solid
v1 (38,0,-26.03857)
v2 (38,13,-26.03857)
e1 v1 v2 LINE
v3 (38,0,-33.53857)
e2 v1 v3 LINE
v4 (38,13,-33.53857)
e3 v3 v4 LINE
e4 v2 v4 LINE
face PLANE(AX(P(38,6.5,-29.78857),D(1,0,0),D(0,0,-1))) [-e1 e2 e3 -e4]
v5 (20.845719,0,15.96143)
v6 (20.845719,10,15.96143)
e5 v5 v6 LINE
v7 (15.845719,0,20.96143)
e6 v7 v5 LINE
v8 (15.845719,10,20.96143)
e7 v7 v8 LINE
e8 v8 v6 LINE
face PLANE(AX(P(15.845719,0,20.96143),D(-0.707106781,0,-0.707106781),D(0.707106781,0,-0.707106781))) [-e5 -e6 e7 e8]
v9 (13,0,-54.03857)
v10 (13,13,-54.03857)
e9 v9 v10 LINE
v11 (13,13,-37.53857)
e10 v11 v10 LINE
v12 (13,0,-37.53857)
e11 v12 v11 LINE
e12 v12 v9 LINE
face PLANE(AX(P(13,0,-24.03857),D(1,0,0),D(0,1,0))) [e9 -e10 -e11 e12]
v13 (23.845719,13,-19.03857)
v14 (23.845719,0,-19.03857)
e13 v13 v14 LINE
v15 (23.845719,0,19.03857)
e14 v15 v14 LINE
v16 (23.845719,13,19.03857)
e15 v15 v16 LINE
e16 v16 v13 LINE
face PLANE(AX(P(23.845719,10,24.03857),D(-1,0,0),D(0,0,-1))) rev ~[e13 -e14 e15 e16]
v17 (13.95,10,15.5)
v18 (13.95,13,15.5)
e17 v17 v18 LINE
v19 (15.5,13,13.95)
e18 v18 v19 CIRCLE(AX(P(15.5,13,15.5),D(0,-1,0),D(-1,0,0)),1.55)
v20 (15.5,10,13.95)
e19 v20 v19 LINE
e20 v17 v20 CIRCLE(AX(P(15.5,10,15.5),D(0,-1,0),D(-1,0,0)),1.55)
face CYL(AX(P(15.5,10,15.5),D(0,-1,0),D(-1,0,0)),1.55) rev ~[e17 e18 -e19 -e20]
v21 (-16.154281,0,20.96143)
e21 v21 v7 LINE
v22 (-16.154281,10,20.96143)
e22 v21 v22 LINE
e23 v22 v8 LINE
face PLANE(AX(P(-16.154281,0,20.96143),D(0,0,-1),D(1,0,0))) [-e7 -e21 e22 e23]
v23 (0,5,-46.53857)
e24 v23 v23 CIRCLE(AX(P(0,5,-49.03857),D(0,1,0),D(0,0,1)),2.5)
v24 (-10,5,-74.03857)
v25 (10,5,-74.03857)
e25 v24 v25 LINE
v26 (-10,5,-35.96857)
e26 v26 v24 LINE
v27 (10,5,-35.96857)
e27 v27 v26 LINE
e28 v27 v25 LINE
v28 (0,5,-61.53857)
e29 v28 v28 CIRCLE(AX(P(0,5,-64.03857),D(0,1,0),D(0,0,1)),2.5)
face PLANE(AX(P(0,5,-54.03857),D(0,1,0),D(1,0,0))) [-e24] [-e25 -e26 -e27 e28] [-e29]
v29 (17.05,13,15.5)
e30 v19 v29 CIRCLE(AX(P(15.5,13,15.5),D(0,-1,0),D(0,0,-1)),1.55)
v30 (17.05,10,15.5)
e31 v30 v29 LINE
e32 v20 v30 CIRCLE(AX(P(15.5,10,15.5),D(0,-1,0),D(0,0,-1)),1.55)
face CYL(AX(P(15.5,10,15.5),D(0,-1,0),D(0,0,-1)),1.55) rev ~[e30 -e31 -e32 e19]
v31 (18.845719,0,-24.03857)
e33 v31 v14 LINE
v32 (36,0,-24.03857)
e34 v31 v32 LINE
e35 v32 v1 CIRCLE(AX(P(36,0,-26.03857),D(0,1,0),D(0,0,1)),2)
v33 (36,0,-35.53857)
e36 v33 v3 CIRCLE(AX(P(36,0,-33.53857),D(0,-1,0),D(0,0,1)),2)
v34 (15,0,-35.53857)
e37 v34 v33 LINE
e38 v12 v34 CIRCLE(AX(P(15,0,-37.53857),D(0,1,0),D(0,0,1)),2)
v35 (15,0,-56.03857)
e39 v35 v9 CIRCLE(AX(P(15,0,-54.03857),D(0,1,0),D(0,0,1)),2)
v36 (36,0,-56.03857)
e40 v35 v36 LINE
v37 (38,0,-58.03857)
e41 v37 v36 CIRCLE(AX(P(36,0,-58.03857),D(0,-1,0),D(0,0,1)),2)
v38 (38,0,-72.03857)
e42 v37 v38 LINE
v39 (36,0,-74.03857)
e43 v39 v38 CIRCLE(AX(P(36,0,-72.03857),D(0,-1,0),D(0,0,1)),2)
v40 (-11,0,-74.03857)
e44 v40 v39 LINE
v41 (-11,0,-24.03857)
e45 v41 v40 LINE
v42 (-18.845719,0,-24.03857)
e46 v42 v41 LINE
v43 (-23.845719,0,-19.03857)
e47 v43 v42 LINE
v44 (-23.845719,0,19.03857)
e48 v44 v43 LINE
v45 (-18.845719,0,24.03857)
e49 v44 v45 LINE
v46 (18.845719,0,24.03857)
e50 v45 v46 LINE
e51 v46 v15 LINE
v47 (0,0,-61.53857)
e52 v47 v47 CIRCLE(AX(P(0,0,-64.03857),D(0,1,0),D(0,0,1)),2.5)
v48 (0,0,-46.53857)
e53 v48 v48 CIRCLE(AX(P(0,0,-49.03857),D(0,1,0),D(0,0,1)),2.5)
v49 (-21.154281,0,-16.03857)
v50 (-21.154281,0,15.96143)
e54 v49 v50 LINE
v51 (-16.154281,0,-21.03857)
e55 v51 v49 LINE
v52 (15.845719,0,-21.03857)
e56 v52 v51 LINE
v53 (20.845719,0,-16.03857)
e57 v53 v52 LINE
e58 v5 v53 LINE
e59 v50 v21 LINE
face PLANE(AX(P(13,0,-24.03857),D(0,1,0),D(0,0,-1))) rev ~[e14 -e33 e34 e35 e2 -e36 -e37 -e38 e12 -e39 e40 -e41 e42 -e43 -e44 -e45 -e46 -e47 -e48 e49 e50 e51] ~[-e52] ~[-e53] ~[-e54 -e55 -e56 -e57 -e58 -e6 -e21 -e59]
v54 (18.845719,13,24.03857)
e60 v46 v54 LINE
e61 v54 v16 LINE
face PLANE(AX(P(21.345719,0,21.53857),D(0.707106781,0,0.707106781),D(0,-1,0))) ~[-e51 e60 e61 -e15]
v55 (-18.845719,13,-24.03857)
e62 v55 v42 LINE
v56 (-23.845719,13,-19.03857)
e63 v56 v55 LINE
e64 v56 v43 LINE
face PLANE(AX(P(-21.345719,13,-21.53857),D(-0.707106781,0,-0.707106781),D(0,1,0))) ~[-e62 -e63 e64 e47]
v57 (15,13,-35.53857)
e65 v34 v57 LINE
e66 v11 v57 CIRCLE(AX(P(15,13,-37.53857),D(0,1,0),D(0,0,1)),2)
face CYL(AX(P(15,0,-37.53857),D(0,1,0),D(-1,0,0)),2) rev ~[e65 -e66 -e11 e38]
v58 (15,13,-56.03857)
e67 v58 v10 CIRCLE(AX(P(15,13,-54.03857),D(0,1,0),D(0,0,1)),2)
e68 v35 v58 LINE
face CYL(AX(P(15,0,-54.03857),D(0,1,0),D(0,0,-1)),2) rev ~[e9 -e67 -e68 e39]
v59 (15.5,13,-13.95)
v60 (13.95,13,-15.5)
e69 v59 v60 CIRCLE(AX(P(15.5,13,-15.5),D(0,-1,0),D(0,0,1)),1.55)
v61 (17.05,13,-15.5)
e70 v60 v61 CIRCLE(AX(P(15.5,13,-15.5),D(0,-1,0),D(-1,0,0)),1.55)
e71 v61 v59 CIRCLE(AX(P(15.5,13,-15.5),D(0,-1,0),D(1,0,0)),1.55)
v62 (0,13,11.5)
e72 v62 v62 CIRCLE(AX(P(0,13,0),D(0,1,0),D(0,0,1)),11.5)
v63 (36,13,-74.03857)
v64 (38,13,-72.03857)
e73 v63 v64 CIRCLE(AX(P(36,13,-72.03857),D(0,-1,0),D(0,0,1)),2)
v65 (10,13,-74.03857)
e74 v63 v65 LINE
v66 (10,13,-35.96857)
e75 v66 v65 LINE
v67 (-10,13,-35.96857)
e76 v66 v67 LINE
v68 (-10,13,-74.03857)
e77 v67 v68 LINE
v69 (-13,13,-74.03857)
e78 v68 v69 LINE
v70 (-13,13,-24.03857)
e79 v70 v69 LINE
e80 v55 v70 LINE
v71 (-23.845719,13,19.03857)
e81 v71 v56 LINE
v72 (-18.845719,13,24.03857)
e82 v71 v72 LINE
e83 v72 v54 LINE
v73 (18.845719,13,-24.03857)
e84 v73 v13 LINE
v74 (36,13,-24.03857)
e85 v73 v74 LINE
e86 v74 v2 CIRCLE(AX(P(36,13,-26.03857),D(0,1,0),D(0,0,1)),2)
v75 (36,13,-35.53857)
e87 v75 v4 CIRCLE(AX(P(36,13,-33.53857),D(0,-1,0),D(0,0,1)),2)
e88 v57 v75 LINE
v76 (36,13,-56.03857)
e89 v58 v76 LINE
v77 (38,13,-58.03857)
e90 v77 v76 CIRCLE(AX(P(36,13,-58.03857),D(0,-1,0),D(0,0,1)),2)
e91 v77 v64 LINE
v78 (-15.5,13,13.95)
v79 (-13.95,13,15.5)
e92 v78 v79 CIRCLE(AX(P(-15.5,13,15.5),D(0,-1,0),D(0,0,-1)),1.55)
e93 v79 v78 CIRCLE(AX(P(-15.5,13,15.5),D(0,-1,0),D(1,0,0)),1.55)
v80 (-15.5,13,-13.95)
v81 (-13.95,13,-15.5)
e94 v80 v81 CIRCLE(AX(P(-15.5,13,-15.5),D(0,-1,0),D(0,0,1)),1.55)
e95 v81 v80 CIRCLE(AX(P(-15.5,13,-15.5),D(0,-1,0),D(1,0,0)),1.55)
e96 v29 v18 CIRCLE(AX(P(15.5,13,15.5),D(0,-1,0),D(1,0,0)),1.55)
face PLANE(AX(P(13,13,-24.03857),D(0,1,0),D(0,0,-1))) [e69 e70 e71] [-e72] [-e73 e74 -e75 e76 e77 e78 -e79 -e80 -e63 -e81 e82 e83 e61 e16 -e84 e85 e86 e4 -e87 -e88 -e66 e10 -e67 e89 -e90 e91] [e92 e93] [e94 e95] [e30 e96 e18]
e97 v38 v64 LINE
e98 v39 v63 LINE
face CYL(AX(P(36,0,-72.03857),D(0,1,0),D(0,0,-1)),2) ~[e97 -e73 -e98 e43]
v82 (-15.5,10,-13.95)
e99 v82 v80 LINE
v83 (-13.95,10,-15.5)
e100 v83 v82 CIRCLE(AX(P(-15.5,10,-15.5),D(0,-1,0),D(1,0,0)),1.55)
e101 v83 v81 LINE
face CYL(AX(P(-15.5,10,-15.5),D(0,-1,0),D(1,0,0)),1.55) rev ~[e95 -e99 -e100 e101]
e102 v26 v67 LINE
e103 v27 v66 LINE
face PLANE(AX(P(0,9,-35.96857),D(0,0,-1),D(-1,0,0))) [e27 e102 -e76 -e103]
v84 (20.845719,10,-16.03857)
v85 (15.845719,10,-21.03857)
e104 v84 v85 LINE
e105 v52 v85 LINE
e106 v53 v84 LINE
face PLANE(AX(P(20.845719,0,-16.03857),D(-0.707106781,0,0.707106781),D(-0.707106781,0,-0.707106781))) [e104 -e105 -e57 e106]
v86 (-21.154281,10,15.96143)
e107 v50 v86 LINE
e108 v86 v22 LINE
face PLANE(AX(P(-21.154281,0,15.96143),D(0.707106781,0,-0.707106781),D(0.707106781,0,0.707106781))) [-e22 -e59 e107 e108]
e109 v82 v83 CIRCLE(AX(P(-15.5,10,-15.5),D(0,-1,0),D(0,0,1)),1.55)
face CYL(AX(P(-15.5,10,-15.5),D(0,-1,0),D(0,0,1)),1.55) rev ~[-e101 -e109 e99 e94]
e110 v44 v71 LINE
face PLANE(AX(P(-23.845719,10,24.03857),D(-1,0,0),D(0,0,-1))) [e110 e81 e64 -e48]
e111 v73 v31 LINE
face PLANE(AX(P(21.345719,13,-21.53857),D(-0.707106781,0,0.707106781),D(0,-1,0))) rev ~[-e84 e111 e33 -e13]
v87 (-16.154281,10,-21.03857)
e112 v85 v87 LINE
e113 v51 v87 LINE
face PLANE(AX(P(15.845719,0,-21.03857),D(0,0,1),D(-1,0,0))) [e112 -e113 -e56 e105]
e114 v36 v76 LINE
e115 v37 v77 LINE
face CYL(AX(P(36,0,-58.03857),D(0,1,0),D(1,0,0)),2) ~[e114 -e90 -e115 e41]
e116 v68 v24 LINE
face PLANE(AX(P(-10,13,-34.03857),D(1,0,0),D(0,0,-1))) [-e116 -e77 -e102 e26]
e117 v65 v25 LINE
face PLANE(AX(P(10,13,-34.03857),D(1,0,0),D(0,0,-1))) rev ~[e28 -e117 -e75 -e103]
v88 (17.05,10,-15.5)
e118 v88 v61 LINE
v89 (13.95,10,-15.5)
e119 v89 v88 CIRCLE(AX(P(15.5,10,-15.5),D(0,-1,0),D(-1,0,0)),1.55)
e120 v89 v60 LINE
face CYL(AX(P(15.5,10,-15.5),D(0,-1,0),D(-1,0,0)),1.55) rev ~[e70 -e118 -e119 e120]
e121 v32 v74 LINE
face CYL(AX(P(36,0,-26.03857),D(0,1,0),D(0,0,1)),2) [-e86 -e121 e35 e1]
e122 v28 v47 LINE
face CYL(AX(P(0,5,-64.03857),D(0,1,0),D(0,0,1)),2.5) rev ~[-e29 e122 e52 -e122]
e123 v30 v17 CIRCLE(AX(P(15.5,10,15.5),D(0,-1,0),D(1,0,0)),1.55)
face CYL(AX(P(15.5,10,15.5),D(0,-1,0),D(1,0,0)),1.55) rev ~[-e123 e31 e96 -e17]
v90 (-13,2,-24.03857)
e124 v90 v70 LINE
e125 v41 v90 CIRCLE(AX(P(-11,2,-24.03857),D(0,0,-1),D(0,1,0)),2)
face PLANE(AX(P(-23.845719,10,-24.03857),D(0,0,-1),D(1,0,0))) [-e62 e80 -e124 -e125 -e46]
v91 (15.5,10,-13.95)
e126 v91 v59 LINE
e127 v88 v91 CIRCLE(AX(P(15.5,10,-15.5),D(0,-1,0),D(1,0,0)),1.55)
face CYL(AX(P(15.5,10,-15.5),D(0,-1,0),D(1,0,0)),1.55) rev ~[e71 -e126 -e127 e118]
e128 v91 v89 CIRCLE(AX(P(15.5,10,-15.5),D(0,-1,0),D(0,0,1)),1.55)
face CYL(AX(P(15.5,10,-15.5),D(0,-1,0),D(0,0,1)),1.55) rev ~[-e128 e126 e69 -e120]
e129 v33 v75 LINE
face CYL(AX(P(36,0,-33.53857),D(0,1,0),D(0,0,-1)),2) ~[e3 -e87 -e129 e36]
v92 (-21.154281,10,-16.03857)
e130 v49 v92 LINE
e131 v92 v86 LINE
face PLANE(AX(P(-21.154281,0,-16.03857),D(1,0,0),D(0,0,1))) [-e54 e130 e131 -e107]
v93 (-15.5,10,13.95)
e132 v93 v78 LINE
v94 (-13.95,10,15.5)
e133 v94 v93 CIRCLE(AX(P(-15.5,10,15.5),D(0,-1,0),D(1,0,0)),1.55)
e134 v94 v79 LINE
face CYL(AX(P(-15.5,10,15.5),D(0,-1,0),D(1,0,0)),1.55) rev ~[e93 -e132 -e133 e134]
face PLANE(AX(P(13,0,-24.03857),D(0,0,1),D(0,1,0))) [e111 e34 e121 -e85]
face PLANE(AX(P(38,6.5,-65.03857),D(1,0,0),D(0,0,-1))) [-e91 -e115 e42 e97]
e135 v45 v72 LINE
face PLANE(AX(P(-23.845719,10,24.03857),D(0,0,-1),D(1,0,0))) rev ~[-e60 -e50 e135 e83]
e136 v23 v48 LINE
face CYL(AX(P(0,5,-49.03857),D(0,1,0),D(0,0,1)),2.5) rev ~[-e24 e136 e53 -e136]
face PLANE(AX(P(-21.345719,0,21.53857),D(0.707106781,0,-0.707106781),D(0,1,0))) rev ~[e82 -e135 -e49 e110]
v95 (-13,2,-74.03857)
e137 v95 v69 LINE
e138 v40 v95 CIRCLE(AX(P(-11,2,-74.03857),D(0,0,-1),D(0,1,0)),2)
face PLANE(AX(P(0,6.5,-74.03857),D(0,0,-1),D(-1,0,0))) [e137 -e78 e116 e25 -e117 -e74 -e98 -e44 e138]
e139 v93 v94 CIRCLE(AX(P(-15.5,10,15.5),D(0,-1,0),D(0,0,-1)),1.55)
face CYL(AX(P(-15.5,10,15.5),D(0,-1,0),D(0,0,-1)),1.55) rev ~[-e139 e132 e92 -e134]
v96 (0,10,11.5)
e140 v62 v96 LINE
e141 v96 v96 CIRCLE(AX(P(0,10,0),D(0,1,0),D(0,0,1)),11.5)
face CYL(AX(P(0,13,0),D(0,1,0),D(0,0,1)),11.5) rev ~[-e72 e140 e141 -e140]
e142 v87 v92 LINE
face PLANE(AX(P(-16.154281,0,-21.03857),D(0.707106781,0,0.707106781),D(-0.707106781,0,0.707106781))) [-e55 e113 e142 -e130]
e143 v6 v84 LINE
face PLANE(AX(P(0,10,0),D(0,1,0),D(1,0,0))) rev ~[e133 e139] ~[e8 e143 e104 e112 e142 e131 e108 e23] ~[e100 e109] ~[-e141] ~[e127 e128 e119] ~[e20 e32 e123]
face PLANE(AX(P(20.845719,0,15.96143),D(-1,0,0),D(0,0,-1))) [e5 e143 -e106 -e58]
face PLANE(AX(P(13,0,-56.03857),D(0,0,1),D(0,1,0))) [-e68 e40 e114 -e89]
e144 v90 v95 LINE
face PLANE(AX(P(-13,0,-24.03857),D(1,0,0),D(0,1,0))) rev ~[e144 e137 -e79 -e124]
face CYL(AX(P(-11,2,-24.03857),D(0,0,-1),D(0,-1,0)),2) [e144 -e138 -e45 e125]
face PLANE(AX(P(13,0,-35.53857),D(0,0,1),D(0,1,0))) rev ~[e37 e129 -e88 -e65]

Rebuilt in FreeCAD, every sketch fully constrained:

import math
import FreeCAD as App
import Part
import Sketcher
from FreeCAD import Vector
Q = App.Units.Quantity


def edges_at(feature, points):
    """Names of the edges that pass closest to the given points."""
    edges = feature.Shape.Edges
    near = lambda p: min(range(len(edges)), key=lambda i: edges[i].distToShape(Part.Vertex(*p))[0])
    return sorted({f"Edge{near(p) + 1}" for p in points})

doc = App.newDocument("Part")
body = doc.addObject("PartDesign::Body", "Body")

sketch1 = body.newObject("Sketcher::SketchObject", "Sketch")
sketch1.AttachmentSupport = (doc.getObject("XZ_Plane"), [""])
sketch1.MapMode = "FlatFace"
sketch1.addGeometry(Part.LineSegment(Vector(-23.845719, -24.03857, 0), Vector(-23.845719, 24.03857, 0)), False)
sketch1.addGeometry(Part.LineSegment(Vector(-23.845719, 24.03857, 0), Vector(23.845719, 24.03857, 0)), False)
sketch1.addGeometry(Part.LineSegment(Vector(23.845719, 24.03857, 0), Vector(23.845719, -24.03857, 0)), False)
sketch1.addGeometry(Part.LineSegment(Vector(23.845719, -24.03857, 0), Vector(-23.845719, -24.03857, 0)), False)
sketch1.addGeometry(Part.LineSegment(Vector(-16.154281, 20.96143, 0), Vector(-21.154281, 15.96143, 0)), False)
sketch1.addGeometry(Part.LineSegment(Vector(-21.154281, 15.96143, 0), Vector(-21.154281, -16.03857, 0)), False)
sketch1.addGeometry(Part.LineSegment(Vector(-21.154281, -16.03857, 0), Vector(-16.154281, -21.03857, 0)), False)
sketch1.addGeometry(Part.LineSegment(Vector(-16.154281, -21.03857, 0), Vector(15.845719, -21.03857, 0)), False)
sketch1.addGeometry(Part.LineSegment(Vector(15.845719, -21.03857, 0), Vector(20.845719, -16.03857, 0)), False)
sketch1.addGeometry(Part.LineSegment(Vector(20.845719, -16.03857, 0), Vector(20.845719, 15.96143, 0)), False)
sketch1.addGeometry(Part.LineSegment(Vector(20.845719, 15.96143, 0), Vector(15.845719, 20.96143, 0)), False)
sketch1.addGeometry(Part.LineSegment(Vector(15.845719, 20.96143, 0), Vector(-16.154281, 20.96143, 0)), False)
sketch1.addConstraint(Sketcher.Constraint("Coincident", 0, 2, 1, 1))
sketch1.addConstraint(Sketcher.Constraint("Coincident", 1, 2, 2, 1))
sketch1.addConstraint(Sketcher.Constraint("Coincident", 2, 2, 3, 1))
sketch1.addConstraint(Sketcher.Constraint("Coincident", 3, 2, 0, 1))
sketch1.addConstraint(Sketcher.Constraint("Coincident", 4, 2, 5, 1))
sketch1.addConstraint(Sketcher.Constraint("Coincident", 5, 2, 6, 1))
sketch1.addConstraint(Sketcher.Constraint("Coincident", 6, 2, 7, 1))
sketch1.addConstraint(Sketcher.Constraint("Coincident", 7, 2, 8, 1))
sketch1.addConstraint(Sketcher.Constraint("Coincident", 8, 2, 9, 1))
sketch1.addConstraint(Sketcher.Constraint("Coincident", 9, 2, 10, 1))
sketch1.addConstraint(Sketcher.Constraint("Coincident", 10, 2, 11, 1))
sketch1.addConstraint(Sketcher.Constraint("Coincident", 11, 2, 4, 1))
sketch1.addConstraint(Sketcher.Constraint("Vertical", 0))
sketch1.addConstraint(Sketcher.Constraint("Horizontal", 1))
sketch1.addConstraint(Sketcher.Constraint("Vertical", 2))
sketch1.addConstraint(Sketcher.Constraint("Horizontal", 3))
sketch1.addConstraint(Sketcher.Constraint("Vertical", 5))
sketch1.addConstraint(Sketcher.Constraint("Horizontal", 7))
sketch1.addConstraint(Sketcher.Constraint("Vertical", 9))
sketch1.addConstraint(Sketcher.Constraint("Horizontal", 11))
sketch1.addConstraint(Sketcher.Constraint("Symmetric", 0, 2, 2, 2, -1, 1))
sketch1.addConstraint(Sketcher.Constraint("Perpendicular", 4, 6))
sketch1.addConstraint(Sketcher.Constraint("Perpendicular", 6, 8))
sketch1.addConstraint(Sketcher.Constraint("Perpendicular", 8, 10))
sketch1.addConstraint(Sketcher.Constraint("Horizontal", 5, 2, 8, 2))
sketch1.addConstraint(Sketcher.Constraint("Horizontal", 4, 2, 9, 2))
sketch1.addConstraint(Sketcher.Constraint("Vertical", 7, 2, 10, 2))
sketch1.addConstraint(Sketcher.Constraint("Vertical", 6, 2, 11, 2))
sketch1.addConstraint(Sketcher.Constraint("Equal", 11, 5))
sketch1.addConstraint(Sketcher.Constraint("DistanceX", 7, 1, 7, 2, Q("32 mm")))
sketch1.addConstraint(Sketcher.Constraint("DistanceY", 3, 2, 4, 2, Q("40 mm")))
sketch1.addConstraint(Sketcher.Constraint("DistanceX", 4, 2, 1, 2, Q("45 mm")))
sketch1.addConstraint(Sketcher.Constraint("DistanceX", 5, 2, 6, 2, Q("5 mm")))
sketch1.addConstraint(Sketcher.Constraint("DistanceX", 1, 1, 1, 2, Q("47.691438 mm")))
sketch1.addConstraint(Sketcher.Constraint("DistanceY", 0, 1, 0, 2, Q("48.07714 mm")))
pad1 = body.newObject("PartDesign::Pad", "Pad")
pad1.Profile = sketch1
pad1.Length = 10
pad1.Reversed = True

sketch2 = body.newObject("Sketcher::SketchObject", "Sketch001")
sketch2.AttachmentSupport = (doc.getObject("XZ_Plane"), [""])
sketch2.MapMode = "FlatFace"
sketch2.AttachmentOffset = App.Placement(Vector(0, 0, -10), App.Rotation())
sketch2.addGeometry(Part.LineSegment(Vector(-23.845719, -24.03857, 0), Vector(-23.845719, 24.03857, 0)), False)
sketch2.addGeometry(Part.LineSegment(Vector(-23.845719, 24.03857, 0), Vector(23.845719, 24.03857, 0)), False)
sketch2.addGeometry(Part.LineSegment(Vector(23.845719, 24.03857, 0), Vector(23.845719, -24.03857, 0)), False)
sketch2.addGeometry(Part.LineSegment(Vector(23.845719, -24.03857, 0), Vector(-23.845719, -24.03857, 0)), False)
sketch2.addConstraint(Sketcher.Constraint("Coincident", 0, 2, 1, 1))
sketch2.addConstraint(Sketcher.Constraint("Coincident", 1, 2, 2, 1))
sketch2.addConstraint(Sketcher.Constraint("Coincident", 2, 2, 3, 1))
sketch2.addConstraint(Sketcher.Constraint("Coincident", 3, 2, 0, 1))
sketch2.addConstraint(Sketcher.Constraint("Vertical", 0))
sketch2.addConstraint(Sketcher.Constraint("Horizontal", 1))
sketch2.addConstraint(Sketcher.Constraint("Vertical", 2))
sketch2.addConstraint(Sketcher.Constraint("Horizontal", 3))
sketch2.addConstraint(Sketcher.Constraint("Symmetric", 0, 2, 2, 2, -1, 1))
sketch2.addConstraint(Sketcher.Constraint("DistanceX", 1, 1, 1, 2, Q("47.691438 mm")))
sketch2.addConstraint(Sketcher.Constraint("DistanceY", 0, 1, 0, 2, Q("48.07714 mm")))
pad2 = body.newObject("PartDesign::Pad", "Pad001")
pad2.Profile = sketch2
pad2.Length = 3
pad2.Reversed = True

sketch3 = body.newObject("Sketcher::SketchObject", "Sketch002")
sketch3.AttachmentSupport = (doc.getObject("XZ_Plane"), [""])
sketch3.MapMode = "FlatFace"
sketch3.AttachmentOffset = App.Placement(Vector(0, 0, -10), App.Rotation())
sketch3.addGeometry(Part.ArcOfCircle(Part.Circle(Vector(-15.5, -15.5, 0), Vector(0, 0, 1), 1.55), math.radians(0), math.radians(90)), False)
sketch3.addGeometry(Part.ArcOfCircle(Part.Circle(Vector(-15.5, -15.5, 0), Vector(0, 0, 1), 1.55), math.radians(90), math.radians(360)), False)
sketch3.addGeometry(Part.ArcOfCircle(Part.Circle(Vector(15.5, -15.5, 0), Vector(0, 0, 1), 1.55), math.radians(0), math.radians(90)), False)
sketch3.addGeometry(Part.ArcOfCircle(Part.Circle(Vector(15.5, -15.5, 0), Vector(0, 0, 1), 1.55), math.radians(90), math.radians(180)), False)
sketch3.addGeometry(Part.ArcOfCircle(Part.Circle(Vector(15.5, -15.5, 0), Vector(0, 0, 1), 1.55), math.radians(180), math.radians(360)), False)
sketch3.addGeometry(Part.ArcOfCircle(Part.Circle(Vector(15.5, 15.5, 0), Vector(0, 0, 1), 1.55), math.radians(0), math.radians(180)), False)
sketch3.addGeometry(Part.ArcOfCircle(Part.Circle(Vector(15.5, 15.5, 0), Vector(0, 0, 1), 1.55), math.radians(180), math.radians(270)), False)
sketch3.addGeometry(Part.ArcOfCircle(Part.Circle(Vector(15.5, 15.5, 0), Vector(0, 0, 1), 1.55), math.radians(-90), math.radians(0)), False)
sketch3.addGeometry(Part.ArcOfCircle(Part.Circle(Vector(-15.5, 15.5, 0), Vector(0, 0, 1), 1.55), math.radians(-90), math.radians(0)), False)
sketch3.addGeometry(Part.ArcOfCircle(Part.Circle(Vector(-15.5, 15.5, 0), Vector(0, 0, 1), 1.55), math.radians(0), math.radians(270)), False)
sketch3.addConstraint(Sketcher.Constraint("Tangent", 0, 1, 1, 2))
sketch3.addConstraint(Sketcher.Constraint("Coincident", 1, 1, 0, 2))
sketch3.addConstraint(Sketcher.Constraint("Tangent", 2, 2, 3, 1))
sketch3.addConstraint(Sketcher.Constraint("Tangent", 3, 2, 4, 1))
sketch3.addConstraint(Sketcher.Constraint("Tangent", 4, 2, 2, 1))
sketch3.addConstraint(Sketcher.Constraint("Tangent", 5, 2, 6, 1))
sketch3.addConstraint(Sketcher.Constraint("Tangent", 6, 2, 7, 1))
sketch3.addConstraint(Sketcher.Constraint("Tangent", 7, 2, 5, 1))
sketch3.addConstraint(Sketcher.Constraint("Tangent", 8, 1, 9, 2))
sketch3.addConstraint(Sketcher.Constraint("Coincident", 9, 1, 8, 2))
sketch3.addConstraint(Sketcher.Constraint("Equal", 1, 2))
sketch3.addConstraint(Sketcher.Constraint("Equal", 4, 5))
sketch3.addConstraint(Sketcher.Constraint("Equal", 7, 8))
sketch3.addConstraint(Sketcher.Constraint("Symmetric", 0, 3, 5, 3, -1, 1))
sketch3.addConstraint(Sketcher.Constraint("Symmetric", 2, 3, 8, 3, -1, 1))
sketch3.addConstraint(Sketcher.Constraint("Symmetric", 0, 3, 2, 3, -2))
sketch3.addConstraint(Sketcher.Constraint("Horizontal", 4, 3, 0, 1))
sketch3.addConstraint(Sketcher.Constraint("Horizontal", 0, 1, 3, 2))
sketch3.addConstraint(Sketcher.Constraint("Horizontal", 3, 2, 4, 2))
sketch3.addConstraint(Sketcher.Constraint("Horizontal", 9, 3, 5, 2))
sketch3.addConstraint(Sketcher.Constraint("Horizontal", 5, 2, 7, 2))
sketch3.addConstraint(Sketcher.Constraint("Horizontal", 7, 2, 9, 1))
sketch3.addConstraint(Sketcher.Constraint("Vertical", 9, 3, 1, 1))
sketch3.addConstraint(Sketcher.Constraint("Vertical", 7, 3, 2, 2))
sketch3.addConstraint(Sketcher.Constraint("Vertical", 2, 2, 6, 2))
sketch3.addConstraint(Sketcher.Constraint("Vertical", 1, 1, 8, 1))
sketch3.addConstraint(Sketcher.Constraint("Radius", 0, Q("1.55 mm")))
sketch3.addConstraint(Sketcher.Constraint("DistanceX", 0, 3, 2, 3, Q("31 mm")))
sketch3.addConstraint(Sketcher.Constraint("DistanceY", 2, 3, 5, 3, Q("31 mm")))
pocket1 = body.newObject("PartDesign::Pocket", "Pocket")
pocket1.Profile = sketch3
pocket1.Length = 3

sketch4 = body.newObject("Sketcher::SketchObject", "Sketch003")
sketch4.AttachmentSupport = (doc.getObject("XZ_Plane"), [""])
sketch4.MapMode = "FlatFace"
sketch4.AttachmentOffset = App.Placement(Vector(0, 0, -13), App.Rotation())
sketch4.addGeometry(Part.Circle(Vector(0, 0, 0), Vector(0, 0, 1), 11.5), False)
sketch4.addConstraint(Sketcher.Constraint("Coincident", 0, 3, -1, 1))
sketch4.addConstraint(Sketcher.Constraint("Diameter", 0, Q("23 mm")))
pocket2 = body.newObject("PartDesign::Pocket", "Pocket001")
pocket2.Profile = sketch4
pocket2.Length = 3
pocket2.Reversed = True
doc.recompute()

chamfer = body.newObject("PartDesign::Chamfer", "Chamfer")
chamfer.Base = (pocket2, edges_at(pocket2, [
    (23.846, 6.5, -24.039),
    (23.846, 6.5, 24.039),
    (-23.846, 6.5, 24.039),
    (-23.846, 6.5, -24.039),
]))
chamfer.Size = 5

sketch5 = body.newObject("Sketcher::SketchObject", "Sketch004")
sketch5.AttachmentSupport = (doc.getObject("XY_Plane"), [""])
sketch5.MapMode = "FlatFace"
sketch5.AttachmentOffset = App.Placement(Vector(0, 0, -24.03857), App.Rotation())
sketch5.addGeometry(Part.LineSegment(Vector(13, 13, 0), Vector(13, 0, 0)), False)
sketch5.addGeometry(Part.LineSegment(Vector(13, 0, 0), Vector(-13, 0, 0)), False)
sketch5.addGeometry(Part.LineSegment(Vector(-13, 0, 0), Vector(-13, 13, 0)), False)
sketch5.addGeometry(Part.LineSegment(Vector(-13, 13, 0), Vector(13, 13, 0)), False)
sketch5.addConstraint(Sketcher.Constraint("Coincident", 0, 2, 1, 1))
sketch5.addConstraint(Sketcher.Constraint("Coincident", 1, 2, 2, 1))
sketch5.addConstraint(Sketcher.Constraint("Coincident", 2, 2, 3, 1))
sketch5.addConstraint(Sketcher.Constraint("Coincident", 3, 2, 0, 1))
sketch5.addConstraint(Sketcher.Constraint("Vertical", 0))
sketch5.addConstraint(Sketcher.Constraint("Horizontal", 1))
sketch5.addConstraint(Sketcher.Constraint("Vertical", 2))
sketch5.addConstraint(Sketcher.Constraint("Horizontal", 3))
sketch5.addConstraint(Sketcher.Constraint("Symmetric", 0, 2, 1, 2, -1, 1))
sketch5.addConstraint(Sketcher.Constraint("DistanceX", 1, 2, 1, 1, Q("26 mm")))
sketch5.addConstraint(Sketcher.Constraint("DistanceY", 0, 2, 0, 1, Q("13 mm")))
pad3 = body.newObject("PartDesign::Pad", "Pad002")
pad3.Profile = sketch5
pad3.Length = 50
pad3.Reversed = True

sketch6 = body.newObject("Sketcher::SketchObject", "Sketch005")
sketch6.AttachmentSupport = (doc.getObject("XZ_Plane"), [""])
sketch6.MapMode = "FlatFace"
sketch6.AttachmentOffset = App.Placement(Vector(0, 0, -13), App.Rotation())
sketch6.addGeometry(Part.LineSegment(Vector(-10, -74.03857, 0), Vector(-10, -34.03857, 0)), False)
sketch6.addGeometry(Part.LineSegment(Vector(-10, -34.03857, 0), Vector(10, -34.03857, 0)), False)
sketch6.addGeometry(Part.LineSegment(Vector(10, -34.03857, 0), Vector(10, -74.03857, 0)), False)
sketch6.addGeometry(Part.LineSegment(Vector(10, -74.03857, 0), Vector(-10, -74.03857, 0)), False)
sketch6.addConstraint(Sketcher.Constraint("Coincident", 0, 2, 1, 1))
sketch6.addConstraint(Sketcher.Constraint("Coincident", 1, 2, 2, 1))
sketch6.addConstraint(Sketcher.Constraint("Coincident", 2, 2, 3, 1))
sketch6.addConstraint(Sketcher.Constraint("Coincident", 3, 2, 0, 1))
sketch6.addConstraint(Sketcher.Constraint("Vertical", 0))
sketch6.addConstraint(Sketcher.Constraint("Horizontal", 1))
sketch6.addConstraint(Sketcher.Constraint("Vertical", 2))
sketch6.addConstraint(Sketcher.Constraint("Horizontal", 3))
sketch6.addConstraint(Sketcher.Constraint("DistanceX", 1, 1, 1, 2, Q("20 mm")))
sketch6.addConstraint(Sketcher.Constraint("DistanceY", 0, 1, 0, 2, Q("40 mm")))
sketch6.addConstraint(Sketcher.Constraint("DistanceX", 0, 2, -1, 1, Q("10 mm")))
sketch6.addConstraint(Sketcher.Constraint("DistanceY", 0, 2, -1, 1, Q("34.03857 mm")))
pocket3 = body.newObject("PartDesign::Pocket", "Pocket002")
pocket3.Profile = sketch6
pocket3.Length = 8
pocket3.Reversed = True

sketch7 = body.newObject("Sketcher::SketchObject", "Sketch006")
sketch7.AttachmentSupport = (doc.getObject("XY_Plane"), [""])
sketch7.MapMode = "FlatFace"
sketch7.AttachmentOffset = App.Placement(Vector(0, 0, -34.03857), App.Rotation())
sketch7.addGeometry(Part.LineSegment(Vector(10, 13, 0), Vector(10, 5, 0)), False)
sketch7.addGeometry(Part.LineSegment(Vector(10, 5, 0), Vector(-10, 5, 0)), False)
sketch7.addGeometry(Part.LineSegment(Vector(-10, 5, 0), Vector(-10, 13, 0)), False)
sketch7.addGeometry(Part.LineSegment(Vector(-10, 13, 0), Vector(10, 13, 0)), False)
sketch7.addConstraint(Sketcher.Constraint("Coincident", 0, 2, 1, 1))
sketch7.addConstraint(Sketcher.Constraint("Coincident", 1, 2, 2, 1))
sketch7.addConstraint(Sketcher.Constraint("Coincident", 2, 2, 3, 1))
sketch7.addConstraint(Sketcher.Constraint("Coincident", 3, 2, 0, 1))
sketch7.addConstraint(Sketcher.Constraint("Vertical", 0))
sketch7.addConstraint(Sketcher.Constraint("Horizontal", 1))
sketch7.addConstraint(Sketcher.Constraint("Vertical", 2))
sketch7.addConstraint(Sketcher.Constraint("Horizontal", 3))
sketch7.addConstraint(Sketcher.Constraint("DistanceX", 1, 2, 1, 1, Q("20 mm")))
sketch7.addConstraint(Sketcher.Constraint("DistanceY", 0, 2, 0, 1, Q("8 mm")))
sketch7.addConstraint(Sketcher.Constraint("DistanceX", -1, 1, 0, 2, Q("10 mm")))
sketch7.addConstraint(Sketcher.Constraint("DistanceY", -1, 1, 0, 2, Q("5 mm")))
pad4 = body.newObject("PartDesign::Pad", "Pad003")
pad4.Profile = sketch7
pad4.Length = 1.93
pad4.Reversed = True

sketch8 = body.newObject("Sketcher::SketchObject", "Sketch007")
sketch8.AttachmentSupport = (doc.getObject("YZ_Plane"), [""])
sketch8.MapMode = "FlatFace"
sketch8.AttachmentOffset = App.Placement(Vector(0, 0, 13), App.Rotation())
sketch8.addGeometry(Part.LineSegment(Vector(13, -24.03857, 0), Vector(0, -24.03857, 0)), False)
sketch8.addGeometry(Part.LineSegment(Vector(0, -24.03857, 0), Vector(0, -35.53857, 0)), False)
sketch8.addGeometry(Part.LineSegment(Vector(0, -35.53857, 0), Vector(13, -35.53857, 0)), False)
sketch8.addGeometry(Part.LineSegment(Vector(13, -35.53857, 0), Vector(13, -24.03857, 0)), False)
sketch8.addGeometry(Part.LineSegment(Vector(13, -56.03857, 0), Vector(0, -56.03857, 0)), False)
sketch8.addGeometry(Part.LineSegment(Vector(0, -56.03857, 0), Vector(0, -74.03857, 0)), False)
sketch8.addGeometry(Part.LineSegment(Vector(0, -74.03857, 0), Vector(13, -74.03857, 0)), False)
sketch8.addGeometry(Part.LineSegment(Vector(13, -74.03857, 0), Vector(13, -56.03857, 0)), False)
sketch8.addConstraint(Sketcher.Constraint("Coincident", 0, 2, 1, 1))
sketch8.addConstraint(Sketcher.Constraint("Coincident", 1, 2, 2, 1))
sketch8.addConstraint(Sketcher.Constraint("Coincident", 2, 2, 3, 1))
sketch8.addConstraint(Sketcher.Constraint("Coincident", 3, 2, 0, 1))
sketch8.addConstraint(Sketcher.Constraint("Coincident", 4, 2, 5, 1))
sketch8.addConstraint(Sketcher.Constraint("Coincident", 5, 2, 6, 1))
sketch8.addConstraint(Sketcher.Constraint("Coincident", 6, 2, 7, 1))
sketch8.addConstraint(Sketcher.Constraint("Coincident", 7, 2, 4, 1))
sketch8.addConstraint(Sketcher.Constraint("Horizontal", 0))
sketch8.addConstraint(Sketcher.Constraint("Vertical", 1))
sketch8.addConstraint(Sketcher.Constraint("Horizontal", 2))
sketch8.addConstraint(Sketcher.Constraint("Vertical", 3))
sketch8.addConstraint(Sketcher.Constraint("Horizontal", 4))
sketch8.addConstraint(Sketcher.Constraint("Vertical", 5))
sketch8.addConstraint(Sketcher.Constraint("Horizontal", 6))
sketch8.addConstraint(Sketcher.Constraint("Vertical", 7))
sketch8.addConstraint(Sketcher.Constraint("PointOnObject", 0, 2, -2))
sketch8.addConstraint(Sketcher.Constraint("PointOnObject", 4, 2, -2))
sketch8.addConstraint(Sketcher.Constraint("Vertical", 3, 2, 6, 2))
sketch8.addConstraint(Sketcher.Constraint("DistanceX", 0, 2, 0, 1, Q("13 mm")))
sketch8.addConstraint(Sketcher.Constraint("DistanceY", 5, 2, 5, 1, Q("18 mm")))
sketch8.addConstraint(Sketcher.Constraint("DistanceY", 1, 2, 1, 1, Q("11.5 mm")))
sketch8.addConstraint(Sketcher.Constraint("DistanceY", 4, 2, 0, 2, Q("32 mm")))
sketch8.addConstraint(Sketcher.Constraint("DistanceY", 0, 2, -1, 1, Q("24.03857 mm")))
pad5 = body.newObject("PartDesign::Pad", "Pad004")
pad5.Profile = sketch8
pad5.Length = 25
doc.recompute()

fillet = body.newObject("PartDesign::Fillet", "Fillet")
fillet.Base = (pad5, edges_at(pad5, [
    (-13, 0, -49.039),
    (13, 6.5, -35.539),
    (38, 6.5, -24.039),
    (38, 6.5, -35.539),
    (13, 6.5, -56.039),
    (38, 6.5, -56.039),
    (38, 6.5, -74.039),
]))
fillet.Radius = 2

sketch9 = body.newObject("Sketcher::SketchObject", "Sketch008")
sketch9.AttachmentSupport = (doc.getObject("XZ_Plane"), [""])
sketch9.MapMode = "FlatFace"
sketch9.AttachmentOffset = App.Placement(Vector(0, 0, -5), App.Rotation())
sketch9.addGeometry(Part.Circle(Vector(0, -64.03857, 0), Vector(0, 0, 1), 2.5), False)
sketch9.addGeometry(Part.Circle(Vector(0, -49.03857, 0), Vector(0, 0, 1), 2.5), False)
sketch9.addConstraint(Sketcher.Constraint("Equal", 0, 1))
sketch9.addConstraint(Sketcher.Constraint("PointOnObject", 0, 3, -2))
sketch9.addConstraint(Sketcher.Constraint("PointOnObject", 1, 3, -2))
sketch9.addConstraint(Sketcher.Constraint("Diameter", 0, Q("5 mm")))
sketch9.addConstraint(Sketcher.Constraint("DistanceY", 0, 3, 1, 3, Q("15 mm")))
sketch9.addConstraint(Sketcher.Constraint("DistanceY", 0, 3, -1, 1, Q("64.03857 mm")))
pocket4 = body.newObject("PartDesign::Pocket", "Pocket003")
pocket4.Profile = sketch9
pocket4.Length = 25
pocket4.Reversed = True

doc.recompute()
